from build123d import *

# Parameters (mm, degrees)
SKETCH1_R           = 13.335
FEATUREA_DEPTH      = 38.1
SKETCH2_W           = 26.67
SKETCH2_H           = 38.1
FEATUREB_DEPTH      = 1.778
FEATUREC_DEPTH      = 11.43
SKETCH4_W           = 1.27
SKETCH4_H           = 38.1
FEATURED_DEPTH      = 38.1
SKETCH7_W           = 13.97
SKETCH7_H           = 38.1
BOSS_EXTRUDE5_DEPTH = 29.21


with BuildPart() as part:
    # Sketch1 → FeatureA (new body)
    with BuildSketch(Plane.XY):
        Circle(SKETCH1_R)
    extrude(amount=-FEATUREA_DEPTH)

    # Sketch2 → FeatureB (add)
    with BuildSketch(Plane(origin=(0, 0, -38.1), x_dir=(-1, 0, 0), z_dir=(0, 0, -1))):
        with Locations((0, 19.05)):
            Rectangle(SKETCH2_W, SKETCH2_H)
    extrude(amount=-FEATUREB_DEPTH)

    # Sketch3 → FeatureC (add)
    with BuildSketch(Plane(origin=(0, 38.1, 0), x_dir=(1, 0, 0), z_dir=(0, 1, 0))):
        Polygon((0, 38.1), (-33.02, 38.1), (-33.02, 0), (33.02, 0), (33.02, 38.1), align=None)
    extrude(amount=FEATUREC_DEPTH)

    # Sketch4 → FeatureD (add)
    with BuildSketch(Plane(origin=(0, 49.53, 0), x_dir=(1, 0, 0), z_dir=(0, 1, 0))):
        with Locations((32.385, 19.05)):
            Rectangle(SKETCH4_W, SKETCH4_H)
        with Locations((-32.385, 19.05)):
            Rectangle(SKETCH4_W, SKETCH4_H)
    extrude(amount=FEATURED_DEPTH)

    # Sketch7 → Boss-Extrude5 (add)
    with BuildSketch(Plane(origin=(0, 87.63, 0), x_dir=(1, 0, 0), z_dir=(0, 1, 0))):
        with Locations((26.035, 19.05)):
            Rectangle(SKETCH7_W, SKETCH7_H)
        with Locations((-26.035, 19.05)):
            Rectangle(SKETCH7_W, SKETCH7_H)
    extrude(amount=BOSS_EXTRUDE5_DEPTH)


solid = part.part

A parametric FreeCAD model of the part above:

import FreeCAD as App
import Part
import Sketcher
from FreeCAD import Vector
Q = App.Units.Quantity


def add_polygon(sketch, points):
    """Adds a closed chain of lines whose ends are joined by coincident constraints."""
    first, n = sketch.GeometryCount, len(points)
    for a, b in zip(points, points[1:] + points[:1]):
        sketch.addGeometry(Part.LineSegment(App.Vector(*a, 0), App.Vector(*b, 0)), False)
    for i in range(n):
        sketch.addConstraint(Sketcher.Constraint("Coincident", first + i, 2, first + (i + 1) % n, 1))

doc = App.newDocument("Part")
params = doc.addObject("Spreadsheet::Sheet", "Params")
for row, (alias, value) in enumerate([
    ("sketch1_diameter", "1.05 in"),
    ("pad1_length", "1.5 in"),
    ("sketch2_height", "1.5 in"),
    ("sketch2_width", "1.05 in"),
    ("pad2_length", "0.07 in"),
    ("sketch3_width", "2.6 in"),
    ("sketch3_height", "1.5 in"),
    ("pad3_length", "0.45 in"),
    ("sketch4_height", "1.5 in"),
    ("sketch4_width", "0.05 in"),
    ("pad4_length", "1.5 in"),
    ("sketch5_height", "1.5 in"),
    ("sketch5_width", "0.55 in"),
    ("pad5_length", "1.15 in"),
], start=1):
    params.set(f"A{row}", alias)
    params.set(f"B{row}", "=" + value)
    params.setAlias(f"B{row}", alias)

body = doc.addObject("PartDesign::Body", "Body")

sketch1 = body.newObject("Sketcher::SketchObject", "Sketch")
sketch1.AttachmentSupport = (doc.getObject("XY_Plane"), [""])
sketch1.MapMode = "FlatFace"
sketch1.addGeometry(Part.Circle(Vector(0, 0, 0), Vector(0, 0, 1), 13), False)
sketch1.addConstraint([
    Sketcher.Constraint("Coincident", 0, 3, -1, 1),
    Sketcher.Constraint("Diameter", 0, Q("1.05 in")),
])
sketch1.setExpression("Constraints[1]", "Params.sketch1_diameter")
pad1 = body.newObject("PartDesign::Pad", "Pad")
pad1.Profile = sketch1
pad1.setExpression("Length", "Params.pad1_length")
pad1.Reversed = True

sketch2 = body.newObject("Sketcher::SketchObject", "Sketch001")
sketch2.AttachmentSupport = (doc.getObject("XY_Plane"), [""])
sketch2.MapMode = "FlatFace"
sketch2.AttachmentOffset = App.Placement(Vector(0, 0, -1.5 * 25.4), App.Rotation())
add_polygon(sketch2, [(13, 38), (13, 0), (-13, 0), (-13, 38)])
sketch2.addConstraint([
    Sketcher.Constraint("Vertical", 0),
    Sketcher.Constraint("Horizontal", 1),
    Sketcher.Constraint("Vertical", 2),
    Sketcher.Constraint("Horizontal", 3),
    Sketcher.Constraint("Symmetric", 0, 2, 1, 2, -1, 1),
    Sketcher.Constraint("DistanceY", 0, 2, 0, 1, Q("1.5 in")),
    Sketcher.Constraint("DistanceX", 1, 2, 1, 1, Q("1.05 in")),
])
sketch2.setExpression("Constraints[9]", "Params.sketch2_height")
sketch2.setExpression("Constraints[10]", "Params.sketch2_width")
pad2 = body.newObject("PartDesign::Pad", "Pad001")
pad2.Profile = sketch2
pad2.setExpression("Length", "Params.pad2_length")

sketch3 = body.newObject("Sketcher::SketchObject", "Sketch002")
sketch3.AttachmentSupport = (doc.getObject("XZ_Plane"), [""])
sketch3.MapMode = "FlatFace"
sketch3.AttachmentOffset = App.Placement(Vector(0, 0, -1.5 * 25.4), App.Rotation())
add_polygon(sketch3, [(-33, -38), (-33, 0), (33, 0), (33, -38)])
sketch3.addConstraint([
    Sketcher.Constraint("Vertical", 0),
    Sketcher.Constraint("Horizontal", 1),
    Sketcher.Constraint("Vertical", 2),
    Sketcher.Constraint("Horizontal", 3),
    Sketcher.Constraint("Symmetric", 0, 2, 1, 2, -1, 1),
    Sketcher.Constraint("DistanceX", 1, 1, 1, 2, Q("2.6 in")),
    Sketcher.Constraint("DistanceY", 0, 1, 0, 2, Q("1.5 in")),
])
sketch3.setExpression("Constraints[9]", "Params.sketch3_width")
sketch3.setExpression("Constraints[10]", "Params.sketch3_height")
pad3 = body.newObject("PartDesign::Pad", "Pad002")
pad3.Profile = sketch3
pad3.setExpression("Length", "Params.pad3_length")
pad3.Reversed = True

sketch4 = body.newObject("Sketcher::SketchObject", "Sketch003")
sketch4.AttachmentSupport = (doc.getObject("XZ_Plane"), [""])
sketch4.MapMode = "FlatFace"
sketch4.AttachmentOffset = App.Placement(Vector(0, 0, -1.95 * 25.4), App.Rotation())
add_polygon(sketch4, [(31.8, -38.1), (31.8, 0), (33, 0), (33, -38.1)])
add_polygon(sketch4, [(-33, -38.1), (-33, 0), (-31.8, 0), (-31.8, -38.1)])
sketch4.addConstraint([
    Sketcher.Constraint("Vertical", 0),
    Sketcher.Constraint("Horizontal", 1),
    Sketcher.Constraint("Vertical", 2),
    Sketcher.Constraint("Horizontal", 3),
    Sketcher.Constraint("Vertical", 4),
    Sketcher.Constraint("Horizontal", 5),
    Sketcher.Constraint("Vertical", 6),
    Sketcher.Constraint("Horizontal", 7),
    Sketcher.Constraint("Symmetric", 1, 2, 4, 2, -1, 1),
    Sketcher.Constraint("Symmetric", 0, 2, 5, 2, -2),
    Sketcher.Constraint("Horizontal", 3, 2, 6, 2),
    Sketcher.Constraint("DistanceY", 0, 1, 0, 2, Q("1.5 in")),
    Sketcher.Constraint("DistanceX", 1, 1, 1, 2, Q("0.05 in")),
    Sketcher.Constraint("DistanceX", -1, 1, 1, 2, Q("1.3 in")),
])
sketch4.setExpression("Constraints[19]", "Params.sketch4_height")
sketch4.setExpression("Constraints[20]", "Params.sketch4_width")
pad4 = body.newObject("PartDesign::Pad", "Pad003")
pad4.Profile = sketch4
pad4.setExpression("Length", "Params.pad4_length")
pad4.Reversed = True

sketch5 = body.newObject("Sketcher::SketchObject", "Sketch004")
sketch5.AttachmentSupport = (doc.getObject("XZ_Plane"), [""])
sketch5.MapMode = "FlatFace"
sketch5.AttachmentOffset = App.Placement(Vector(0, 0, -3.45 * 25.4), App.Rotation())
add_polygon(sketch5, [(19, -38), (19, 0), (33, 0), (33, -38)])
add_polygon(sketch5, [(-33, -38), (-33, 0), (-19, 0), (-19, -38)])
sketch5.addConstraint([
    Sketcher.Constraint("Vertical", 0),
    Sketcher.Constraint("Horizontal", 1),
    Sketcher.Constraint("Vertical", 2),
    Sketcher.Constraint("Horizontal", 3),
    Sketcher.Constraint("Vertical", 4),
    Sketcher.Constraint("Horizontal", 5),
    Sketcher.Constraint("Vertical", 6),
    Sketcher.Constraint("Horizontal", 7),
    Sketcher.Constraint("Symmetric", 1, 2, 4, 2, -1, 1),
    Sketcher.Constraint("Symmetric", 0, 2, 5, 2, -2),
    Sketcher.Constraint("Horizontal", 3, 2, 6, 2),
    Sketcher.Constraint("DistanceY", 0, 1, 0, 2, Q("1.5 in")),
    Sketcher.Constraint("DistanceX", 1, 1, 1, 2, Q("0.55 in")),
    Sketcher.Constraint("DistanceX", -1, 1, 1, 2, Q("1.3 in")),
])
sketch5.setExpression("Constraints[19]", "Params.sketch5_height")
sketch5.setExpression("Constraints[20]", "Params.sketch5_width")
pad5 = body.newObject("PartDesign::Pad", "Pad004")
pad5.Profile = sketch5
pad5.setExpression("Length", "Params.pad5_length")
pad5.Reversed = True

doc.recompute()
